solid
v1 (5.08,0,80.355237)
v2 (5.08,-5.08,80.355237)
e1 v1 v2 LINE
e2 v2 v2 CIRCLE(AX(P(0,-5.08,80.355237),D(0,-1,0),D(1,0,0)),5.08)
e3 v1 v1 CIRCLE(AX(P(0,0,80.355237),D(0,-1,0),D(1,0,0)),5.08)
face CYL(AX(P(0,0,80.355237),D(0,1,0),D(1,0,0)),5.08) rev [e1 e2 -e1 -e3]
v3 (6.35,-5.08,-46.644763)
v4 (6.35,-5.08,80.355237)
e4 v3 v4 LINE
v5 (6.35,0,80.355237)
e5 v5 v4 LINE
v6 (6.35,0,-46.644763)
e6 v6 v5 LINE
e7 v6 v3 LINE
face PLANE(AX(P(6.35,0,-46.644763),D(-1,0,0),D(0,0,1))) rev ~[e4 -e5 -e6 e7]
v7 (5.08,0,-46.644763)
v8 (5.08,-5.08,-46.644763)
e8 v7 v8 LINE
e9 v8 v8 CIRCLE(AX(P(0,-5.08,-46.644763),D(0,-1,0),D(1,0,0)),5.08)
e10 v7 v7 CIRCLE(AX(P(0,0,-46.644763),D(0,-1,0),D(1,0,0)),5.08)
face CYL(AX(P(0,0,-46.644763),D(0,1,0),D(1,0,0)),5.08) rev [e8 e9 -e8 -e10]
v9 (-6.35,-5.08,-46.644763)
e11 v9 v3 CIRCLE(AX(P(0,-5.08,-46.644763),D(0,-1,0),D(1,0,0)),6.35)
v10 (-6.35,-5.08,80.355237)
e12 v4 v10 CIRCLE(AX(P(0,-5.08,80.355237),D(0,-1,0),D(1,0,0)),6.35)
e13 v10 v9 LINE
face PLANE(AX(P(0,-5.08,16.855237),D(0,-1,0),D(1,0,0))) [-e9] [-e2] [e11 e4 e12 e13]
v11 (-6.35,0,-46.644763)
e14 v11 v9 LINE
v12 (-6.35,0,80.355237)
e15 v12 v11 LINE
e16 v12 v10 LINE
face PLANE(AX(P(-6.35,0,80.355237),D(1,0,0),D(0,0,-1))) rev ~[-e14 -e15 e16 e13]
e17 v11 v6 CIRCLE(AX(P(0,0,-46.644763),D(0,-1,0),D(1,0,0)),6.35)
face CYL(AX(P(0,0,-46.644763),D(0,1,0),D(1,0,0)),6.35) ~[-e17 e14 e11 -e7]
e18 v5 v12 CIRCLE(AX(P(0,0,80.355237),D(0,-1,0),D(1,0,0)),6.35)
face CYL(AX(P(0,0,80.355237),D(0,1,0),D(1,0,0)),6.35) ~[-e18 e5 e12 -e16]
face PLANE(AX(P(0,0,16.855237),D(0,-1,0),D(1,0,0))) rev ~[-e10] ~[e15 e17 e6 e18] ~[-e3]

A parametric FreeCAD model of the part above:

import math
import FreeCAD as App
import Part
import Sketcher
from FreeCAD import Vector
Q = App.Units.Quantity

doc = App.newDocument("Part")
body = doc.addObject("PartDesign::Body", "Body")

# Sketch on XZ plane
sketch1 = body.newObject("Sketcher::SketchObject", "Sketch")
sketch1.AttachmentSupport = (doc.getObject("XZ_Plane"), [""])
sketch1.MapMode = "FlatFace"
sketch1.addGeometry(Part.LineSegment(Vector(6, -47, 0), Vector(6, 80, 0)), False)
sketch1.addGeometry(Part.ArcOfCircle(Part.Circle(Vector(0, 80, 0), Vector(0, 0, 1), 6), math.radians(0), math.radians(180)), False)
sketch1.addGeometry(Part.LineSegment(Vector(-6, 80, 0), Vector(-6, -47, 0)), False)
sketch1.addGeometry(Part.ArcOfCircle(Part.Circle(Vector(0, -47, 0), Vector(0, 0, 1), 6), math.radians(180), math.radians(360)), False)
sketch1.addGeometry(Part.Circle(Vector(0, -47, 0), Vector(0, 0, 1), 5), False)
sketch1.addGeometry(Part.Circle(Vector(0, 80, 0), Vector(0, 0, 1), 5), False)
sketch1.addConstraint(Sketcher.Constraint("Tangent", 0, 2, 1, 1))
sketch1.addConstraint(Sketcher.Constraint("Tangent", 1, 2, 2, 1))
sketch1.addConstraint(Sketcher.Constraint("Tangent", 2, 2, 3, 1))
sketch1.addConstraint(Sketcher.Constraint("Tangent", 3, 2, 0, 1))
sketch1.addConstraint(Sketcher.Constraint("Vertical", 0))
sketch1.addConstraint(Sketcher.Constraint("Vertical", 2))
sketch1.addConstraint(Sketcher.Constraint("Coincident", 4, 3, 3, 3))
sketch1.addConstraint(Sketcher.Constraint("Coincident", 5, 3, 1, 3))
sketch1.addConstraint(Sketcher.Constraint("Equal", 4, 5))
sketch1.addConstraint(Sketcher.Constraint("PointOnObject", 1, 3, -2))
sketch1.addConstraint(Sketcher.Constraint("Diameter", 4, Q("0.4 in")))
sketch1.addConstraint(Sketcher.Constraint("DistanceY", 0, 1, 0, 2, Q("5 in")))
sketch1.addConstraint(Sketcher.Constraint("Radius", 1, Q("0.25 in")))
sketch1.addConstraint(Sketcher.Constraint("DistanceY", -1, 1, 1, 3, 80.355237))
pad1 = body.newObject("PartDesign::Pad", "Pad")
pad1.Profile = sketch1
pad1.Length = Q("0.2 in")

doc.recompute()
